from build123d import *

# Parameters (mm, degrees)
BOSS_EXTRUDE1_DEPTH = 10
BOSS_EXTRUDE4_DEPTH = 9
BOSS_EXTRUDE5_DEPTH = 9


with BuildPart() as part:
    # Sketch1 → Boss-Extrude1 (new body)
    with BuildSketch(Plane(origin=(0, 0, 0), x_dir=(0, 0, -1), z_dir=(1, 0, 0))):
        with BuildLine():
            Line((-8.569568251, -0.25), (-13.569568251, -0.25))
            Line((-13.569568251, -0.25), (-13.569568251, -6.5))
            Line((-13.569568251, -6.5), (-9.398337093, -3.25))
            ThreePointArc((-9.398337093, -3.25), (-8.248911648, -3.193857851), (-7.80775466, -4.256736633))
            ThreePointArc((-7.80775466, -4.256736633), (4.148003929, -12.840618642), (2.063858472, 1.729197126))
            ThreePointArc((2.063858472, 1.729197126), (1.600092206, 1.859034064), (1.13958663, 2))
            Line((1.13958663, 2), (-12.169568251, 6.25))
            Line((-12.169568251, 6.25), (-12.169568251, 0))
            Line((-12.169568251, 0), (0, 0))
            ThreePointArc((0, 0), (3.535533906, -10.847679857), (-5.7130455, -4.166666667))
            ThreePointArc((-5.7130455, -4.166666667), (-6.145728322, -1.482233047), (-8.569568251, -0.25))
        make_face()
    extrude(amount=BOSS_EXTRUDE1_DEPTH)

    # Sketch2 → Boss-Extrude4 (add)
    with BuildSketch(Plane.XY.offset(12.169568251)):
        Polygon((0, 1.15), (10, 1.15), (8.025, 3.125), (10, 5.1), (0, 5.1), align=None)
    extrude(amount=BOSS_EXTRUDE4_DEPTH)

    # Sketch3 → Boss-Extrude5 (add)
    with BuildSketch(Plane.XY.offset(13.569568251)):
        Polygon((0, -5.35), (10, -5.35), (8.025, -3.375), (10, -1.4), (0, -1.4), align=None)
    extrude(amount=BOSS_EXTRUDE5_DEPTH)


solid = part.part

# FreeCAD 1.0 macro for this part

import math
import FreeCAD as App
import Part
import Sketcher
Q = App.Units.Quantity

doc = App.newDocument("Part")
body = doc.addObject("PartDesign::Body", "Body")

# Sketch on YZ plane
sketch1 = body.newObject("Sketcher::SketchObject", "Sketch")
sketch1.AttachmentSupport = (doc.getObject("YZ_Plane"), [""])
sketch1.MapMode = "FlatFace"
sketch1.addGeometry([
    Part.LineSegment(App.Vector(-0.2, 8.6, 0), App.Vector(-0.2, 13.6, 0)),  # 0
    Part.LineSegment(App.Vector(-0.2, 13.6, 0), App.Vector(-6.5, 13.6, 0)),  # 1
    Part.LineSegment(App.Vector(-6.5, 13.6, 0), App.Vector(-3.2, 9.4, 0)),  # 2
    Part.ArcOfCircle(Part.Circle(App.Vector(-4, 8.8, 0), App.Vector(0, 0, 1), 1), math.radians(-103), math.radians(38)),  # 3
    Part.ArcOfCircle(Part.Circle(App.Vector(-6, 0, 0), App.Vector(0, 0, 1), 8), math.radians(77), math.radians(345)),  # 4
    Part.ArcOfCircle(Part.Circle(App.Vector(21.1, -7.2, 0), App.Vector(0, 0, 1), 20), math.radians(162.29), math.radians(165.05)),  # 5
    Part.LineSegment(App.Vector(2, -1.1, 0), App.Vector(6.2, 12.2, 0)),  # 6
    Part.LineSegment(App.Vector(6.2, 12.2, 0), App.Vector(0, 12.2, 0)),  # 7
    Part.LineSegment(App.Vector(0, 12.2, 0), App.Vector(0, 0, 0)),  # 8
    Part.ArcOfCircle(Part.Circle(App.Vector(-6, 0, 0), App.Vector(0, 0, 1), 6), math.radians(72), math.radians(360)),  # 9
    Part.ArcOfCircle(Part.Circle(App.Vector(-3.3, 8.6, 0), App.Vector(0, 0, 1), 3), math.radians(-108), math.radians(0)),  # 10
], False)
sketch1.addConstraint([
    Sketcher.Constraint("Coincident", 0, 2, 1, 1),
    Sketcher.Constraint("Coincident", 1, 2, 2, 1),
    Sketcher.Constraint("Tangent", 2, 2, 3, 2),
    Sketcher.Constraint("Tangent", 3, 1, 4, 1),
    Sketcher.Constraint("Tangent", 4, 2, 5, 2),
    Sketcher.Constraint("Tangent", 5, 1, 6, 1),
    Sketcher.Constraint("Coincident", 6, 2, 7, 1),
    Sketcher.Constraint("Coincident", 7, 2, 8, 1),
    Sketcher.Constraint("Tangent", 8, 2, 9, 2),
    Sketcher.Constraint("Tangent", 9, 1, 10, 1),
    Sketcher.Constraint("Tangent", 10, 2, 0, 1),
    Sketcher.Constraint("Vertical", 0),
    Sketcher.Constraint("Horizontal", 1),
    Sketcher.Constraint("Horizontal", 7),
    Sketcher.Constraint("Vertical", 8),
    Sketcher.Constraint("Coincident", 8, 2, -1, 1),
    Sketcher.Constraint("Coincident", 9, 3, 4, 3),
    Sketcher.Constraint("Vertical", 10, 3, 2, 2),
    Sketcher.Constraint("Equal", 1, 7),
    Sketcher.Constraint("Radius", 3, Q("1 mm")),
    Sketcher.Constraint("Radius", 4, Q("8 mm")),
    Sketcher.Constraint("Radius", 5, Q("19.999998 mm")),
    Sketcher.Constraint("Radius", 9, Q("6 mm")),
    Sketcher.Constraint("Radius", 10, Q("3 mm")),
    Sketcher.Constraint("DistanceY", 0, 1, 0, 2, Q("5 mm")),
    Sketcher.Constraint("DistanceX", -1, 1, 5, 1, Q("2 mm")),
    Sketcher.Constraint("DistanceX", 1, 2, 1, 1, Q("6.25 mm")),
    Sketcher.Constraint("DistanceX", 1, 2, -1, 1, Q("6.5 mm")),
    Sketcher.Constraint("DistanceY", 6, 2, 0, 2, Q("1.4 mm")),
])
pad1 = body.newObject("PartDesign::Pad", "Pad")
pad1.Profile = sketch1
pad1.Length = 10

# Sketch on XY plane
sketch2 = body.newObject("Sketcher::SketchObject", "Sketch001")
sketch2.AttachmentSupport = (doc.getObject("XY_Plane"), [""])
sketch2.MapMode = "FlatFace"
sketch2.AttachmentOffset = App.Placement(App.Vector(0, 0, 12.169568), App.Rotation())
sketch2.addGeometry([
    Part.LineSegment(App.Vector(0, 1.1, 0), App.Vector(10, 1.1, 0)),  # 0
    Part.LineSegment(App.Vector(10, 1.1, 0), App.Vector(8, 3.1, 0)),  # 1
    Part.LineSegment(App.Vector(8, 3.1, 0), App.Vector(10, 5.1, 0)),  # 2
    Part.LineSegment(App.Vector(10, 5.1, 0), App.Vector(0, 5.1, 0)),  # 3
    Part.LineSegment(App.Vector(0, 5.1, 0), App.Vector(0, 1.1, 0)),  # 4
], False)
sketch2.addConstraint([
    Sketcher.Constraint("Coincident", 0, 2, 1, 1),
    Sketcher.Constraint("Coincident", 1, 2, 2, 1),
    Sketcher.Constraint("Coincident", 2, 2, 3, 1),
    Sketcher.Constraint("Coincident", 3, 2, 4, 1),
    Sketcher.Constraint("Coincident", 4, 2, 0, 1),
    Sketcher.Constraint("Horizontal", 0),
    Sketcher.Constraint("Horizontal", 3),
    Sketcher.Constraint("Vertical", 4),
    Sketcher.Constraint("PointOnObject", 3, 2, -2),
    Sketcher.Constraint("Perpendicular", 1, 2),
    Sketcher.Constraint("Vertical", 0, 2, 2, 2),
    Sketcher.Constraint("Equal", 1, 2),
    Sketcher.Constraint("DistanceX", 0, 1, 0, 2, Q("10 mm")),
    Sketcher.Constraint("DistanceY", 4, 2, 4, 1, Q("3.95 mm")),
    Sketcher.Constraint("DistanceY", -1, 1, 2, 2, Q("5.1 mm")),
])
pad2 = body.newObject("PartDesign::Pad", "Pad001")
pad2.Profile = sketch2
pad2.Length = 9

# Sketch on XY plane
sketch3 = body.newObject("Sketcher::SketchObject", "Sketch002")
sketch3.AttachmentSupport = (doc.getObject("XY_Plane"), [""])
sketch3.MapMode = "FlatFace"
sketch3.AttachmentOffset = App.Placement(App.Vector(0, 0, 13.569568), App.Rotation())
sketch3.addGeometry([
    Part.LineSegment(App.Vector(0, -5.3, 0), App.Vector(10, -5.3, 0)),  # 0
    Part.LineSegment(App.Vector(10, -5.3, 0), App.Vector(8, -3.4, 0)),  # 1
    Part.LineSegment(App.Vector(8, -3.4, 0), App.Vector(10, -1.4, 0)),  # 2
    Part.LineSegment(App.Vector(10, -1.4, 0), App.Vector(0, -1.4, 0)),  # 3
    Part.LineSegment(App.Vector(0, -1.4, 0), App.Vector(0, -5.3, 0)),  # 4
], False)
sketch3.addConstraint([
    Sketcher.Constraint("Coincident", 0, 2, 1, 1),
    Sketcher.Constraint("Coincident", 1, 2, 2, 1),
    Sketcher.Constraint("Coincident", 2, 2, 3, 1),
    Sketcher.Constraint("Coincident", 3, 2, 4, 1),
    Sketcher.Constraint("Coincident", 4, 2, 0, 1),
    Sketcher.Constraint("Horizontal", 0),
    Sketcher.Constraint("Horizontal", 3),
    Sketcher.Constraint("Vertical", 4),
    Sketcher.Constraint("PointOnObject", 3, 2, -2),
    Sketcher.Constraint("Perpendicular", 1, 2),
    Sketcher.Constraint("Vertical", 0, 2, 2, 2),
    Sketcher.Constraint("Equal", 1, 2),
    Sketcher.Constraint("DistanceX", 0, 1, 0, 2, Q("10 mm")),
    Sketcher.Constraint("DistanceY", 4, 2, 4, 1, Q("3.95 mm")),
    Sketcher.Constraint("DistanceY", 2, 2, -1, 1, Q("1.4 mm")),
])
pad3 = body.newObject("PartDesign::Pad", "Pad002")
pad3.Profile = sketch3
pad3.Length = 9

doc.recompute()
